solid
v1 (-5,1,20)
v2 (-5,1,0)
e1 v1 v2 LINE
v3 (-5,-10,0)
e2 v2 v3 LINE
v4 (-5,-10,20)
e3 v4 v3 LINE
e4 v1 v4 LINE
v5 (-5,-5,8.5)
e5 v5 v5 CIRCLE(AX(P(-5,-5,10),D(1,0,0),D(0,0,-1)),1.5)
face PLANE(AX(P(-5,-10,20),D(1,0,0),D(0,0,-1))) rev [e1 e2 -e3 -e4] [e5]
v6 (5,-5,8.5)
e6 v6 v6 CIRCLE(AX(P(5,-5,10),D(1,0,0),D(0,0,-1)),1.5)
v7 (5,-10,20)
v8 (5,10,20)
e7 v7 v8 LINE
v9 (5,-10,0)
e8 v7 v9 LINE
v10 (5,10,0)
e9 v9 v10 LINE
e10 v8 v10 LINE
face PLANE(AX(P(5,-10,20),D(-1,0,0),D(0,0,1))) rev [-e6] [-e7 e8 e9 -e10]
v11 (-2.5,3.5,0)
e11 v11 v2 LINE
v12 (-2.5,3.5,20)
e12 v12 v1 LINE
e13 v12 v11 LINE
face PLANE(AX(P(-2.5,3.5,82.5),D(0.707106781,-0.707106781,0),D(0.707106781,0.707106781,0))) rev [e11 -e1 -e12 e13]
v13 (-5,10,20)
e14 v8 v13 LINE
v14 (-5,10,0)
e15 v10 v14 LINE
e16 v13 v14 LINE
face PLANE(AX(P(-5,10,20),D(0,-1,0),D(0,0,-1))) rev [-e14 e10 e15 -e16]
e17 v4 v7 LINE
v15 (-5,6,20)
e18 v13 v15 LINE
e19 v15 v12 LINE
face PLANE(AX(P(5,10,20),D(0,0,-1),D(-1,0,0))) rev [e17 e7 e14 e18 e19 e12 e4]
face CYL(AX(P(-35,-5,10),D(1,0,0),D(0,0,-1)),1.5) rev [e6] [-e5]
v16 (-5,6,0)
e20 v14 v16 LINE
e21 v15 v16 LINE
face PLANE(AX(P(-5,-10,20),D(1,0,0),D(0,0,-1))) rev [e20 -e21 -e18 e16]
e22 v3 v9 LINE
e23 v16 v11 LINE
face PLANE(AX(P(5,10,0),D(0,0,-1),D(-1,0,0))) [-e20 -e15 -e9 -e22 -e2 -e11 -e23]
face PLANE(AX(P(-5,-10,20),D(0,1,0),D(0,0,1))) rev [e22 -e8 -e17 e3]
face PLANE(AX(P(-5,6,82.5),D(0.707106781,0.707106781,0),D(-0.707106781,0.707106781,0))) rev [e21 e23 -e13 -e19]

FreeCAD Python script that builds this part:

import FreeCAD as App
import Part
import Sketcher


def add_polygon(sketch, points):
    """Adds a closed chain of lines whose ends are joined by coincident constraints."""
    first, n = sketch.GeometryCount, len(points)
    for a, b in zip(points, points[1:] + points[:1]):
        sketch.addGeometry(Part.LineSegment(App.Vector(*a, 0), App.Vector(*b, 0)), False)
    for i in range(n):
        sketch.addConstraint(Sketcher.Constraint("Coincident", first + i, 2, first + (i + 1) % n, 1))

doc = App.newDocument("Part")
body = doc.addObject("PartDesign::Body", "Body")

# Sketch on XY plane
sketch1 = body.newObject("Sketcher::SketchObject", "Sketch")
sketch1.AttachmentSupport = (doc.getObject("XY_Plane"), [""])
sketch1.MapMode = "FlatFace"
add_polygon(sketch1, [(-5, 10), (-5, -10), (5, -10), (5, 10)])  # lines 0-3
sketch1.addConstraint([
    Sketcher.Constraint("Vertical", 0),
    Sketcher.Constraint("Horizontal", 1),
    Sketcher.Constraint("Vertical", 2),
    Sketcher.Constraint("Horizontal", 3),
    Sketcher.Constraint("Symmetric", 0, 2, 2, 2, -1, 1),
    Sketcher.Constraint("DistanceX", 1, 1, 1, 2, 10.0),
    Sketcher.Constraint("DistanceY", 0, 2, 0, 1, 20.0),
])
pad1 = body.newObject("PartDesign::Pad", "Pad")
pad1.Profile = sketch1
pad1.Length = 20

# Sketch on XY plane
sketch2 = body.newObject("Sketcher::SketchObject", "Sketch001")
sketch2.AttachmentSupport = (doc.getObject("XY_Plane"), [""])
sketch2.MapMode = "FlatFace"
sketch2.AttachmentOffset = App.Placement(App.Vector(0, 0, 20), App.Rotation())
add_polygon(sketch2, [(-2, 4), (-39, 40), (-134, 40), (-134, -33), (-39, -33)])  # lines 0-4
sketch2.addConstraint([
    Sketcher.Constraint("Horizontal", 1),
    Sketcher.Constraint("Vertical", 2),
    Sketcher.Constraint("Horizontal", 3),
    Sketcher.Constraint("Perpendicular", 0, 4),
    Sketcher.Constraint("Vertical", 0, 2, 3, 2),
    Sketcher.Constraint("Equal", 0, 4),
    Sketcher.Constraint("DistanceX", 4, 2, -1, 1, 2.5),
    Sketcher.Constraint("DistanceY", -1, 1, 4, 2, 3.5),
    Sketcher.Constraint("DistanceX", 1, 2, 1, 1, 95.471849),
    Sketcher.Constraint("DistanceY", 2, 2, 2, 1, 72.508792),
])
pocket1 = body.newObject("PartDesign::Pocket", "Pocket")
pocket1.Profile = sketch2
pocket1.Type = "ThroughAll"
pocket1.Midplane = True

# Sketch on YZ plane
sketch3 = body.newObject("Sketcher::SketchObject", "Sketch002")
sketch3.AttachmentSupport = (doc.getObject("YZ_Plane"), [""])
sketch3.MapMode = "FlatFace"
sketch3.AttachmentOffset = App.Placement(App.Vector(0, 0, 5), App.Rotation())
sketch3.addGeometry(Part.Circle(App.Vector(-5, 10, 0), App.Vector(0, 0, 1), 1.5), False)
sketch3.addConstraint([
    Sketcher.Constraint("Diameter", 0, 3.0),
    Sketcher.Constraint("DistanceX", 0, 3, -1, 1, 5.0),
    Sketcher.Constraint("DistanceY", -1, 1, 0, 3, 10.0),
])
pocket2 = body.newObject("PartDesign::Pocket", "Pocket001")
pocket2.Profile = sketch3
pocket2.Length = 40

doc.recompute()
